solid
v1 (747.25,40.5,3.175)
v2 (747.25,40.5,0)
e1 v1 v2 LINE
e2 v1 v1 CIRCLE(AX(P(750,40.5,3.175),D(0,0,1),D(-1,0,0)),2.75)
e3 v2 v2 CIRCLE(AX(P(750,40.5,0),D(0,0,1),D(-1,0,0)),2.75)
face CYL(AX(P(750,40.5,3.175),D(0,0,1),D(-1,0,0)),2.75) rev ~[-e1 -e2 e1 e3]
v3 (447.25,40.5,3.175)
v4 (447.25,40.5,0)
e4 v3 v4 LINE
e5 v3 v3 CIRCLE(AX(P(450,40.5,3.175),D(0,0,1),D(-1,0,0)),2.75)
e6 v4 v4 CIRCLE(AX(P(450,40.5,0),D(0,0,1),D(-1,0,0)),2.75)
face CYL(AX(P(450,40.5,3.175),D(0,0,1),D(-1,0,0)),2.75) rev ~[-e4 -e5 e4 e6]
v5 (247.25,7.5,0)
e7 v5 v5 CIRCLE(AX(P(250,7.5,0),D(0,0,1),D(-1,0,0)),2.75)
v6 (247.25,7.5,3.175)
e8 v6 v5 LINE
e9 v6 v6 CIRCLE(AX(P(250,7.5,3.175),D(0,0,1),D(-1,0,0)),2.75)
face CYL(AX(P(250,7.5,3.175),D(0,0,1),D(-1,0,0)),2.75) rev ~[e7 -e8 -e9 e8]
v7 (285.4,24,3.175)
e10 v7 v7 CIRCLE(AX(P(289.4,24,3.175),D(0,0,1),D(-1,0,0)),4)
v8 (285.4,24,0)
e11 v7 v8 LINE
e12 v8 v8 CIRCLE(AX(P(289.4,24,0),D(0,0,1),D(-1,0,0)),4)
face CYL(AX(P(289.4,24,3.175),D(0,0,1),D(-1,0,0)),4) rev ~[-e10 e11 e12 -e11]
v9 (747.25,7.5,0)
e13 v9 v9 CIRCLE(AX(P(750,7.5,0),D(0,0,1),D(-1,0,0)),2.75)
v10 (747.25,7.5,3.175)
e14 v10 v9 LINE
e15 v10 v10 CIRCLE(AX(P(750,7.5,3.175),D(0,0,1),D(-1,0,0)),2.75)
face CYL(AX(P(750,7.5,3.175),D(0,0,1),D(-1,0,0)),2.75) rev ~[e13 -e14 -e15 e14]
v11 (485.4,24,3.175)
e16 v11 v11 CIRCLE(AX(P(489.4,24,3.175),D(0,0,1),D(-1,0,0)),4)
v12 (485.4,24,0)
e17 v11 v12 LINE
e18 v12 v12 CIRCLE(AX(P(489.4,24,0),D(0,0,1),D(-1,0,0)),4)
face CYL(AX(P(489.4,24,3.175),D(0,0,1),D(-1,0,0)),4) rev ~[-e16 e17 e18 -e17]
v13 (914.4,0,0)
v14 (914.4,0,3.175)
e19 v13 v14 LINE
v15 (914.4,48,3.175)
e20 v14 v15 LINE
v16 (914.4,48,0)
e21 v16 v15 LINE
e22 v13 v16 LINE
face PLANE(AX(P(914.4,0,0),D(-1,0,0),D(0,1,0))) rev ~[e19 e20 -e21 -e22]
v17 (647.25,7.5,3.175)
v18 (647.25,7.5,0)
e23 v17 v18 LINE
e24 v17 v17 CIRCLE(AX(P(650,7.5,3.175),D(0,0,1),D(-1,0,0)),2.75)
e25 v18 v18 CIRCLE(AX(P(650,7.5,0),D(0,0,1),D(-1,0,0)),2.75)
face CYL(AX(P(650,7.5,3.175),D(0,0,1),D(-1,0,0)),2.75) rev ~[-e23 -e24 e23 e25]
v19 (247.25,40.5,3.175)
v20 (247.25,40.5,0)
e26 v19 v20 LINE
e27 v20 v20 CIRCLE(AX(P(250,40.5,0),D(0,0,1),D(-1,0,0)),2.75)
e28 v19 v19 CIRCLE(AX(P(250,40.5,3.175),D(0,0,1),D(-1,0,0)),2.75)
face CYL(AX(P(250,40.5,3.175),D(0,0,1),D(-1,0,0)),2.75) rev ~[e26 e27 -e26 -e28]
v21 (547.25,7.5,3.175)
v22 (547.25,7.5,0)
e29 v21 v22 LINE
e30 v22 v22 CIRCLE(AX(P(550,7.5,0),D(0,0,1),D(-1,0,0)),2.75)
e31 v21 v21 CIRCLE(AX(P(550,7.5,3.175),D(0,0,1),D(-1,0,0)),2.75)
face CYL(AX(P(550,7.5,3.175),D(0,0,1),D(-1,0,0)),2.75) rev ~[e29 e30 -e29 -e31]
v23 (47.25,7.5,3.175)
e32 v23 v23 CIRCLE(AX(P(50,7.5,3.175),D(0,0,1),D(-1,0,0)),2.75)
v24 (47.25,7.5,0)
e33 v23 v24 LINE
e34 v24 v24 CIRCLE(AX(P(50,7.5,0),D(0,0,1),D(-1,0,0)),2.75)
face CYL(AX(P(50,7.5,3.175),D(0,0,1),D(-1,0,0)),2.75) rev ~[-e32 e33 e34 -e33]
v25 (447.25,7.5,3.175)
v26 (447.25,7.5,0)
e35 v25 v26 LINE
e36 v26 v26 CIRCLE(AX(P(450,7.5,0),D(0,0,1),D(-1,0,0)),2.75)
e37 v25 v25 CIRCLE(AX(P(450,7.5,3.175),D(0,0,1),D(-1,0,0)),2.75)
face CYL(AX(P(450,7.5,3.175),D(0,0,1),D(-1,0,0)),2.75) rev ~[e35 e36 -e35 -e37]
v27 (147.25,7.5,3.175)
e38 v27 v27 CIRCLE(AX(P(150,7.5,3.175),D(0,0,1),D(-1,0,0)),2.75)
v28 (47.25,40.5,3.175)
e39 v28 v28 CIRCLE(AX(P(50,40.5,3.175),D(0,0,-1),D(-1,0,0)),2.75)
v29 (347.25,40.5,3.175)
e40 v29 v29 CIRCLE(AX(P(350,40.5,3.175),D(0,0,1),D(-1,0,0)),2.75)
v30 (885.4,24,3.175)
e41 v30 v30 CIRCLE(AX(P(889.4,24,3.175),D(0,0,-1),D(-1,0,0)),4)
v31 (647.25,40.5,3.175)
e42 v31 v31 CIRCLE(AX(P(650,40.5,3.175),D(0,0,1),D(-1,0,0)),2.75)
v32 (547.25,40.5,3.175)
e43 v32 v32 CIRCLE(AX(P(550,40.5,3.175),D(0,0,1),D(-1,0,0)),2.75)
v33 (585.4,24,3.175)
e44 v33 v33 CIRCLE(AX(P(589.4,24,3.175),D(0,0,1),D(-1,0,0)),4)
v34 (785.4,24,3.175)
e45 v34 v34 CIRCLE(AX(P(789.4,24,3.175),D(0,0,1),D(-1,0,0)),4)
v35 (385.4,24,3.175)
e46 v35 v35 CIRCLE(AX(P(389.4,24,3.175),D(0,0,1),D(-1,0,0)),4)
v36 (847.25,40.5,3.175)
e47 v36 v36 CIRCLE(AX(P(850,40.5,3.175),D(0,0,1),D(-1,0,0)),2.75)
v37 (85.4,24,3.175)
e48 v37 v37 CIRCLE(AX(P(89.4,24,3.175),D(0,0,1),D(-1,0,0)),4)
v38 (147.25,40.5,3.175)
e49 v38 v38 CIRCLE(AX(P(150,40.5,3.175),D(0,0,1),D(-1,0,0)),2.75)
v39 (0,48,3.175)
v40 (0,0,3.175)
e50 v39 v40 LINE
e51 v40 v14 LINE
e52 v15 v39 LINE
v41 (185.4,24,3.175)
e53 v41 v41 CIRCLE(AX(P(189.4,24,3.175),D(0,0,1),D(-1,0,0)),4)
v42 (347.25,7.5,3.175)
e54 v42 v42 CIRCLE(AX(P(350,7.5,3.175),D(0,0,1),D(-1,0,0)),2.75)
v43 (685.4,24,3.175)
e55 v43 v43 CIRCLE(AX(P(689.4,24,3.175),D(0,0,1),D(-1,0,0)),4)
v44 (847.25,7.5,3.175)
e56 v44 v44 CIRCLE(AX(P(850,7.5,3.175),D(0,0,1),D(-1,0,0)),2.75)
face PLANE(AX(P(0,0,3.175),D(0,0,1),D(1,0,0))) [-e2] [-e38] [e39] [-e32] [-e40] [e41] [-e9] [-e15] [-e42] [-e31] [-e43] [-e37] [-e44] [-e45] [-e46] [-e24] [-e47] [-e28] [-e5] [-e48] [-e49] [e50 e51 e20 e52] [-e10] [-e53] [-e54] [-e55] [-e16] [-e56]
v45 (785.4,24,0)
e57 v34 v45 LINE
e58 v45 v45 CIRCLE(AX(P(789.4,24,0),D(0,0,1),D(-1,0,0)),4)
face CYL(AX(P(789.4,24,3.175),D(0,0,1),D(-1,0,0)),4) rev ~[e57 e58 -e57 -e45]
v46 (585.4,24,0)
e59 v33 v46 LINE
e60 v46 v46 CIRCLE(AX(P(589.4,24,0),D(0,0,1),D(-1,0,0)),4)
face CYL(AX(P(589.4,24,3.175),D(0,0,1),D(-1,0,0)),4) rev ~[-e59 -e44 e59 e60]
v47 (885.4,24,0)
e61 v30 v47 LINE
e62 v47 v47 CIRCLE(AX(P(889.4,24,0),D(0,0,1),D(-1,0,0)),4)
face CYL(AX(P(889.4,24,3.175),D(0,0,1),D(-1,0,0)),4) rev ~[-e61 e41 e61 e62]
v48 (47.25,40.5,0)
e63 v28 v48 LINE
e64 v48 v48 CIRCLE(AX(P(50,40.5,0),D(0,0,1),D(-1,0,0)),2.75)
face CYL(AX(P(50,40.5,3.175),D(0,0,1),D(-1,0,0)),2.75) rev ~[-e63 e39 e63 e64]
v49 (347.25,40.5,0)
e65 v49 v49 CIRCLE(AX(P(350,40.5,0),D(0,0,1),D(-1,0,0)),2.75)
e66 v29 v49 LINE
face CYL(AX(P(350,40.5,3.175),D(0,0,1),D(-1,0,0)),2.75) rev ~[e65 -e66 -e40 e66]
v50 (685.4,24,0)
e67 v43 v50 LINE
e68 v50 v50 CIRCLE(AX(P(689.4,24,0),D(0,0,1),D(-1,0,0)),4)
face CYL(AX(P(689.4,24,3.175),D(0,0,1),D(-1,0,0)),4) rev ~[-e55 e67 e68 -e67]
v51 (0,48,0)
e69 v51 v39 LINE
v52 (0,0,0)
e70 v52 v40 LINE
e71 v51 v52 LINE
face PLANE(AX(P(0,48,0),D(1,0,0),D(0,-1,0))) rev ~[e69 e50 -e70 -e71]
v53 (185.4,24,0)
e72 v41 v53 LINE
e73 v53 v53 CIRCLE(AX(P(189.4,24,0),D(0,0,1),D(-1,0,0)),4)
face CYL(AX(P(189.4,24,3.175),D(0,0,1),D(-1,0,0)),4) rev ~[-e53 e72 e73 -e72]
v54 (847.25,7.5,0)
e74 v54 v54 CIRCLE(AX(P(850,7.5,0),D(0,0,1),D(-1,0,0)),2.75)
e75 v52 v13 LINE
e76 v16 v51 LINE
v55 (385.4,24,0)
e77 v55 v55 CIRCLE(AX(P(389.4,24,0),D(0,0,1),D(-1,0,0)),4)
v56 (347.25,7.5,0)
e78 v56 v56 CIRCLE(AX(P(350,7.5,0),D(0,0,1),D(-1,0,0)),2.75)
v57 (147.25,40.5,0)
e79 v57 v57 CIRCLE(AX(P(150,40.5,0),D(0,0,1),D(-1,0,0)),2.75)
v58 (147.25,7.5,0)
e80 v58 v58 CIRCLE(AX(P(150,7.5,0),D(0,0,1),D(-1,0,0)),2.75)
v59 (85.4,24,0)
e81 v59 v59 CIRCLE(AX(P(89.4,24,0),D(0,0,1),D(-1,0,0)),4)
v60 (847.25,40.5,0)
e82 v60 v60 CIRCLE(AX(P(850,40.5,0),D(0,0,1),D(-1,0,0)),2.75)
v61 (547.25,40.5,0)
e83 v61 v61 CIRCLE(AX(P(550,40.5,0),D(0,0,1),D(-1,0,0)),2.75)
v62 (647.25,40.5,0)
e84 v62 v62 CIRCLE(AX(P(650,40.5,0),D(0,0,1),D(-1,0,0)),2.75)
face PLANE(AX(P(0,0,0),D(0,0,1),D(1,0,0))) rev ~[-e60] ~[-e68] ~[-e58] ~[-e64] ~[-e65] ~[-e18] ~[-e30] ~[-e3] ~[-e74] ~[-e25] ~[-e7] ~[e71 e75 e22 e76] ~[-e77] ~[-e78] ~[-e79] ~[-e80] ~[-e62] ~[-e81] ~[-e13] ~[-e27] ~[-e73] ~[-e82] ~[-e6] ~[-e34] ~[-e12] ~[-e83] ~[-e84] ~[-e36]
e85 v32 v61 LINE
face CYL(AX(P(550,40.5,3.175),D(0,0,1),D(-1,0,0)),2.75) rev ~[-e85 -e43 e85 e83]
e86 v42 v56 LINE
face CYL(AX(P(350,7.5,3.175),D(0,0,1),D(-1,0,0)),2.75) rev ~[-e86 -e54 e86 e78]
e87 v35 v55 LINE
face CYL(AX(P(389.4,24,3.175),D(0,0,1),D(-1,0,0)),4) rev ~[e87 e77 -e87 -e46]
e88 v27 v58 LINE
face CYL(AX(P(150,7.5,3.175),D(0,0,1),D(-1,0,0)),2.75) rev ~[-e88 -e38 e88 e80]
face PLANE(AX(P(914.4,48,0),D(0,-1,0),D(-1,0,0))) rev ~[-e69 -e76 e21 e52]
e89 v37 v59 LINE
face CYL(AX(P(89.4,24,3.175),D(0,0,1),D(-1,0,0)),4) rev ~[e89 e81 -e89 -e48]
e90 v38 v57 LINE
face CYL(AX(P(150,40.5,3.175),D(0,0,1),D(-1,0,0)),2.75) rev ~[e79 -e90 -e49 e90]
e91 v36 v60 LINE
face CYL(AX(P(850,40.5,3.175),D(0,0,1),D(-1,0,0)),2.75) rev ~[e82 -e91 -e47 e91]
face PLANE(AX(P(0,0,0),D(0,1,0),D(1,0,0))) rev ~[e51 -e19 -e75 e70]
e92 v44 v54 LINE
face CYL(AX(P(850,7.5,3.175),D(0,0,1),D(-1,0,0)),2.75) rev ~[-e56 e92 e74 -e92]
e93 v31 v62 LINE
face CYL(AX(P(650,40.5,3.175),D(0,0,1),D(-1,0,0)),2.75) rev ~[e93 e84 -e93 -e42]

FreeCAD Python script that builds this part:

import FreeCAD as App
import Part
import Sketcher
from FreeCAD import Vector
Q = App.Units.Quantity

doc = App.newDocument("Part")
body = doc.addObject("PartDesign::Body", "Body")

# Sketch on XY plane
sketch1 = body.newObject("Sketcher::SketchObject", "Sketch")
sketch1.AttachmentSupport = (doc.getObject("XY_Plane"), [""])
sketch1.MapMode = "FlatFace"
sketch1.addGeometry([
    Part.LineSegment(Vector(0, 48, 0), Vector(0, 0, 0)),
    Part.LineSegment(Vector(0, 0, 0), Vector(914.4, 0, 0)),
    Part.LineSegment(Vector(914.4, 0, 0), Vector(914.4, 48, 0)),
    Part.LineSegment(Vector(914.4, 48, 0), Vector(0, 48, 0)),
], False)
sketch1.addConstraint([
    Sketcher.Constraint("Coincident", 0, 2, 1, 1),
    Sketcher.Constraint("Coincident", 1, 2, 2, 1),
    Sketcher.Constraint("Coincident", 2, 2, 3, 1),
    Sketcher.Constraint("Coincident", 3, 2, 0, 1),
    Sketcher.Constraint("Vertical", 0),
    Sketcher.Constraint("Horizontal", 1),
    Sketcher.Constraint("Vertical", 2),
    Sketcher.Constraint("Horizontal", 3),
    Sketcher.Constraint("Coincident", 0, 2, -1, 1),
    Sketcher.Constraint("DistanceY", 0, 2, 0, 1, Q("48 mm")),
    Sketcher.Constraint("DistanceX", 1, 1, 1, 2, Q("914.4 mm")),
])
pad1 = body.newObject("PartDesign::Pad", "Pad")
pad1.Profile = sketch1
pad1.Length = 3.175

# Sketch on XY plane
sketch2 = body.newObject("Sketcher::SketchObject", "Sketch001")
sketch2.AttachmentSupport = (doc.getObject("XY_Plane"), [""])
sketch2.MapMode = "FlatFace"
sketch2.AttachmentOffset = App.Placement(Vector(0, 0, 3.175), App.Rotation())
sketch2.addGeometry([
    Part.Circle(Vector(889.4, 24, 0), Vector(0, 0, 1), 4),  # 0
    Part.Circle(Vector(50, 40.5, 0), Vector(0, 0, 1), 2.75),  # 1
    Part.Circle(Vector(789.4, 24, 0), Vector(0, 0, 1), 4),  # 2
    Part.Circle(Vector(689.4, 24, 0), Vector(0, 0, 1), 4),  # 3
    Part.Circle(Vector(589.4, 24, 0), Vector(0, 0, 1), 4),  # 4
    Part.Circle(Vector(489.4, 24, 0), Vector(0, 0, 1), 4),  # 5
    Part.Circle(Vector(389.4, 24, 0), Vector(0, 0, 1), 4),  # 6
    Part.Circle(Vector(289.4, 24, 0), Vector(0, 0, 1), 4),  # 7
    Part.Circle(Vector(189.4, 24, 0), Vector(0, 0, 1), 4),  # 8
    Part.Circle(Vector(89.4, 24, 0), Vector(0, 0, 1), 4),  # 9
    Part.Circle(Vector(150, 40.5, 0), Vector(0, 0, 1), 2.75),  # 10
    Part.Circle(Vector(250, 40.5, 0), Vector(0, 0, 1), 2.75),  # 11
    Part.Circle(Vector(350, 40.5, 0), Vector(0, 0, 1), 2.75),  # 12
    Part.Circle(Vector(450, 40.5, 0), Vector(0, 0, 1), 2.75),  # 13
    Part.Circle(Vector(550, 40.5, 0), Vector(0, 0, 1), 2.75),  # 14
    Part.Circle(Vector(650, 40.5, 0), Vector(0, 0, 1), 2.75),  # 15
    Part.Circle(Vector(750, 40.5, 0), Vector(0, 0, 1), 2.75),  # 16
    Part.Circle(Vector(850, 40.5, 0), Vector(0, 0, 1), 2.75),  # 17
    Part.Circle(Vector(50, 7.5, 0), Vector(0, 0, 1), 2.75),  # 18
    Part.Circle(Vector(150, 7.5, 0), Vector(0, 0, 1), 2.75),  # 19
    Part.Circle(Vector(250, 7.5, 0), Vector(0, 0, 1), 2.75),  # 20
    Part.Circle(Vector(350, 7.5, 0), Vector(0, 0, 1), 2.75),  # 21
    Part.Circle(Vector(450, 7.5, 0), Vector(0, 0, 1), 2.75),  # 22
    Part.Circle(Vector(550, 7.5, 0), Vector(0, 0, 1), 2.75),  # 23
    Part.Circle(Vector(650, 7.5, 0), Vector(0, 0, 1), 2.75),  # 24
    Part.Circle(Vector(750, 7.5, 0), Vector(0, 0, 1), 2.75),  # 25
    Part.Circle(Vector(850, 7.5, 0), Vector(0, 0, 1), 2.75),  # 26
], False)
sketch2.addConstraint([
    Sketcher.Constraint("Equal", 0, 2),
    Sketcher.Constraint("Equal", 2, 3),
    Sketcher.Constraint("Equal", 3, 4),
    Sketcher.Constraint("Equal", 4, 5),
    Sketcher.Constraint("Equal", 5, 6),
    Sketcher.Constraint("Equal", 6, 7),
    Sketcher.Constraint("Equal", 7, 8),
    Sketcher.Constraint("Equal", 8, 9),
    Sketcher.Constraint("Equal", 1, 10),
    Sketcher.Constraint("Equal", 10, 11),
    Sketcher.Constraint("Equal", 11, 12),
    Sketcher.Constraint("Equal", 12, 13),
    Sketcher.Constraint("Equal", 13, 14),
    Sketcher.Constraint("Equal", 14, 15),
    Sketcher.Constraint("Equal", 15, 16),
    Sketcher.Constraint("Equal", 16, 17),
    Sketcher.Constraint("Equal", 17, 18),
    Sketcher.Constraint("Equal", 18, 19),
    Sketcher.Constraint("Equal", 19, 20),
    Sketcher.Constraint("Equal", 20, 21),
    Sketcher.Constraint("Equal", 21, 22),
    Sketcher.Constraint("Equal", 22, 23),
    Sketcher.Constraint("Equal", 23, 24),
    Sketcher.Constraint("Equal", 24, 25),
    Sketcher.Constraint("Equal", 25, 26),
    Sketcher.Constraint("Horizontal", 0, 3, 2, 3),
    Sketcher.Constraint("Horizontal", 2, 3, 3, 3),
    Sketcher.Constraint("Horizontal", 3, 3, 4, 3),
    Sketcher.Constraint("Horizontal", 4, 3, 5, 3),
    Sketcher.Constraint("Horizontal", 5, 3, 6, 3),
    Sketcher.Constraint("Horizontal", 6, 3, 7, 3),
    Sketcher.Constraint("Horizontal", 7, 3, 8, 3),
    Sketcher.Constraint("Horizontal", 8, 3, 9, 3),
    Sketcher.Constraint("Horizontal", 1, 3, 10, 3),
    Sketcher.Constraint("Horizontal", 10, 3, 11, 3),
    Sketcher.Constraint("Horizontal", 11, 3, 12, 3),
    Sketcher.Constraint("Horizontal", 12, 3, 13, 3),
    Sketcher.Constraint("Horizontal", 13, 3, 14, 3),
    Sketcher.Constraint("Horizontal", 14, 3, 15, 3),
    Sketcher.Constraint("Horizontal", 15, 3, 16, 3),
    Sketcher.Constraint("Horizontal", 16, 3, 17, 3),
    Sketcher.Constraint("Horizontal", 18, 3, 19, 3),
    Sketcher.Constraint("Horizontal", 19, 3, 20, 3),
    Sketcher.Constraint("Horizontal", 20, 3, 21, 3),
    Sketcher.Constraint("Horizontal", 21, 3, 22, 3),
    Sketcher.Constraint("Horizontal", 22, 3, 23, 3),
    Sketcher.Constraint("Horizontal", 23, 3, 24, 3),
    Sketcher.Constraint("Horizontal", 24, 3, 25, 3),
    Sketcher.Constraint("Horizontal", 25, 3, 26, 3),
    Sketcher.Constraint("Vertical", 1, 3, 18, 3),
    Sketcher.Constraint("Vertical", 10, 3, 19, 3),
    Sketcher.Constraint("Vertical", 11, 3, 20, 3),
    Sketcher.Constraint("Vertical", 12, 3, 21, 3),
    Sketcher.Constraint("Vertical", 13, 3, 22, 3),
    Sketcher.Constraint("Vertical", 14, 3, 23, 3),
    Sketcher.Constraint("Vertical", 15, 3, 24, 3),
    Sketcher.Constraint("Vertical", 16, 3, 25, 3),
    Sketcher.Constraint("Vertical", 17, 3, 26, 3),
    Sketcher.Constraint("Diameter", 0, Q("8 mm")),
    Sketcher.Constraint("Diameter", 1, Q("5.5 mm")),
    Sketcher.Constraint("DistanceX", -1, 1, 1, 3, Q("50 mm")),
    Sketcher.Constraint("DistanceX", 2, 3, 0, 3, Q("100 mm")),
    Sketcher.Constraint("DistanceX", 3, 3, 2, 3, Q("100 mm")),
    Sketcher.Constraint("DistanceX", 4, 3, 3, 3, Q("100 mm")),
    Sketcher.Constraint("DistanceX", 5, 3, 4, 3, Q("100 mm")),
    Sketcher.Constraint("DistanceX", 6, 3, 5, 3, Q("100 mm")),
    Sketcher.Constraint("DistanceX", 7, 3, 6, 3, Q("100 mm")),
    Sketcher.Constraint("DistanceX", 8, 3, 7, 3, Q("100 mm")),
    Sketcher.Constraint("DistanceX", 9, 3, 8, 3, Q("100 mm")),
    Sketcher.Constraint("DistanceX", 1, 3, 10, 3, Q("100 mm")),
    Sketcher.Constraint("DistanceX", 10, 3, 11, 3, Q("100 mm")),
    Sketcher.Constraint("DistanceX", 11, 3, 12, 3, Q("100 mm")),
    Sketcher.Constraint("DistanceX", 12, 3, 13, 3, Q("100 mm")),
    Sketcher.Constraint("DistanceX", 13, 3, 14, 3, Q("100 mm")),
    Sketcher.Constraint("DistanceX", 14, 3, 15, 3, Q("100 mm")),
    Sketcher.Constraint("DistanceX", 15, 3, 16, 3, Q("100 mm")),
    Sketcher.Constraint("DistanceX", 16, 3, 17, 3, Q("100 mm")),
    Sketcher.Constraint("DistanceY", 18, 3, 1, 3, Q("33 mm")),
    Sketcher.Constraint("DistanceY", -1, 1, 18, 3, Q("7.5 mm")),
    Sketcher.Constraint("DistanceY", -1, 1, 0, 3, Q("24 mm")),
    Sketcher.Constraint("DistanceX", -1, 1, 0, 3, Q("889.4 mm")),
])
pocket1 = body.newObject("PartDesign::Pocket", "Pocket")
pocket1.Profile = sketch2
pocket1.Length = 60.31

doc.recompute()
